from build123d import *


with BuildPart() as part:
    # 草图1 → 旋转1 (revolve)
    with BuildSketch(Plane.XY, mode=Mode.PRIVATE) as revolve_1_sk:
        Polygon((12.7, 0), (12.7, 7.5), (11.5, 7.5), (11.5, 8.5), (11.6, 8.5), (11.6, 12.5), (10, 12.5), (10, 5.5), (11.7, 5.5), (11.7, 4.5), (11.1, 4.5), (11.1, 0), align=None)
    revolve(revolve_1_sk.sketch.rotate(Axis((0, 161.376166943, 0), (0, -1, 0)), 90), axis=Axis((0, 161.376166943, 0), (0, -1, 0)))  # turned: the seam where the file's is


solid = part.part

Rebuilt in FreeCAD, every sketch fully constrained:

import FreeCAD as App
import Part
import Sketcher

V = App.Vector
Q = App.Units.Quantity


def add_polygon(sketch, points):
    """Adds a closed chain of lines whose ends are joined by coincident constraints."""
    first, n = sketch.GeometryCount, len(points)
    for a, b in zip(points, points[1:] + points[:1]):
        sketch.addGeometry(Part.LineSegment(App.Vector(*a, 0), App.Vector(*b, 0)), False)
    for i in range(n):
        sketch.addConstraint(Sketcher.Constraint("Coincident", first + i, 2, first + (i + 1) % n, 1))

doc = App.newDocument("Part")
params = doc.addObject("Spreadsheet::Sheet", "Params")
for row, (alias, value) in enumerate([
    ("sketch1_height", "1 mm"),
    ("sketch1_height2", "4 mm"),
    ("sketch1_height3", "7 mm"),
    ("sketch1_width", "1.2 mm"),
    ("sketch1_width2", "0.1 mm"),
    ("revolution_angle", "360 deg"),
], start=1):
    params.set(f"A{row}", alias)
    params.set(f"B{row}", "=" + value)
    params.setAlias(f"B{row}", alias)

body = doc.addObject("PartDesign::Body", "Body")

# Sketch on XY plane
sketch1 = doc.addObject("Sketcher::SketchObject", "Sketch")
body.addObject(sketch1)
sketch1.AttachmentSupport = (doc.XY_Plane, [""])
sketch1.MapMode = "FlatFace"
add_polygon(sketch1, [(12.7, 0), (12.7, 7.5), (11.5, 7.5), (11.5, 8.5), (11.6, 8.5), (11.6, 12.5), (10, 12.5), (10, 5.5), (11.7, 5.5), (11.7, 4.5), (11.1, 4.5), (11.1, 0)])  # lines 0-11
sketch1.addConstraint([
    Sketcher.Constraint("Vertical", 0),
    Sketcher.Constraint("Horizontal", 1),
    Sketcher.Constraint("Vertical", 2),
    Sketcher.Constraint("Horizontal", 3),
    Sketcher.Constraint("Vertical", 4),
    Sketcher.Constraint("Horizontal", 5),
    Sketcher.Constraint("Vertical", 6),
    Sketcher.Constraint("Horizontal", 7),
    Sketcher.Constraint("Vertical", 8),
    Sketcher.Constraint("Horizontal", 9),
    Sketcher.Constraint("Vertical", 10),
    Sketcher.Constraint("Horizontal", 11),
    Sketcher.Constraint("PointOnObject", 10, 2, -1),
    Sketcher.Constraint("Equal", 5, 11),
    Sketcher.Constraint("Equal", 2, 8),
    Sketcher.Constraint("DistanceY", 2, 1, 2, 2, Q("1 mm")),
    Sketcher.Constraint("DistanceY", 4, 1, 4, 2, Q("4 mm")),
    Sketcher.Constraint("DistanceY", 6, 2, 6, 1, Q("7 mm")),
    Sketcher.Constraint("DistanceX", 1, 2, 1, 1, Q("1.2 mm")),
    Sketcher.Constraint("DistanceX", 3, 1, 3, 2, Q("0.1 mm")),
    Sketcher.Constraint("DistanceX", 5, 2, 5, 1, Q("1.6 mm")),
    Sketcher.Constraint("DistanceX", 7, 1, 7, 2, Q("1.7 mm")),
    Sketcher.Constraint("DistanceY", 0, 1, 0, 2, Q("7.5 mm")),
    Sketcher.Constraint("DistanceX", -1, 1, 5, 2, Q("10 mm")),
])
sketch1.setExpression("Constraints[27]", "Params.sketch1_height")
sketch1.setExpression("Constraints[28]", "Params.sketch1_height2")
sketch1.setExpression("Constraints[29]", "Params.sketch1_height3")
sketch1.setExpression("Constraints[30]", "Params.sketch1_width")
sketch1.setExpression("Constraints[31]", "Params.sketch1_width2")
revolution = doc.addObject("PartDesign::Revolution", "Revolution")
body.addObject(revolution)
revolution.Profile = sketch1
revolution.ReferenceAxis = (sketch1, ["V_Axis"])
revolution.setExpression("Angle", "Params.revolution_angle")

doc.recompute()
